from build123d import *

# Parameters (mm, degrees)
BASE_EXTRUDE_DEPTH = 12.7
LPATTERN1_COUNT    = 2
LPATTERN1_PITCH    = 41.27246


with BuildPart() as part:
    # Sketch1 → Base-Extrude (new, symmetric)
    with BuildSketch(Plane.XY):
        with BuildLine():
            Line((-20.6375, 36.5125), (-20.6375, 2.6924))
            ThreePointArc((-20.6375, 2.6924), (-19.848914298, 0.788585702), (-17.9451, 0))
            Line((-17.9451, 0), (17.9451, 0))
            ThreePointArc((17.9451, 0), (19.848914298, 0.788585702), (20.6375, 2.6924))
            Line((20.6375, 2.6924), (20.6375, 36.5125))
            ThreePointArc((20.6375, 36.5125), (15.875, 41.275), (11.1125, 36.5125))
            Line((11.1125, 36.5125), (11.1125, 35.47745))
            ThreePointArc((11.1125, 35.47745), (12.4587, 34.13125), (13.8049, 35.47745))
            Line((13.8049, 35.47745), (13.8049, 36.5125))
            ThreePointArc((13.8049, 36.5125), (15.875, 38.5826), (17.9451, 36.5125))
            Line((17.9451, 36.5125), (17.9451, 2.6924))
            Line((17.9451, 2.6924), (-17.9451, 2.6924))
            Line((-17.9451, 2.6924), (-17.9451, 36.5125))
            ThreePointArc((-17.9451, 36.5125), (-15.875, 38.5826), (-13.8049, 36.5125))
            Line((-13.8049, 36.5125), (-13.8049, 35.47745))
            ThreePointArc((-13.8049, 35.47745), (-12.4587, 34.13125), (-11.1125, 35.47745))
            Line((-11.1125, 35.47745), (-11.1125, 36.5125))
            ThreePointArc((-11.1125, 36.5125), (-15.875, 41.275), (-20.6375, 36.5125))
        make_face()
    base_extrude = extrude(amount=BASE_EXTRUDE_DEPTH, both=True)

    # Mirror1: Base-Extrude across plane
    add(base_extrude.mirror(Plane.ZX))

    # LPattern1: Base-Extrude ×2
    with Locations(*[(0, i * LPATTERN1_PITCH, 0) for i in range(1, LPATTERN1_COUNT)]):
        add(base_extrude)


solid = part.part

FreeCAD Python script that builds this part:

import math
import FreeCAD as App
import Part
import Sketcher
from FreeCAD import Vector
Q = App.Units.Quantity

doc = App.newDocument("Part")
params = doc.addObject("Spreadsheet::Sheet", "Params")
for row, (alias, value) in enumerate([
    ("sketch1_radius", "0.106 in"),
    ("sketch1_radius2", "0.1875 in"),
    ("sketch1_width", "1.413 in"),
    ("pad1_length", "1 in"),
    ("linearpattern_pitch", "1.6249 in"),
], start=1):
    params.set(f"A{row}", alias)
    params.set(f"B{row}", "=" + value)
    params.setAlias(f"B{row}", alias)

body = doc.addObject("PartDesign::Body", "Body")

# Sketch on XY plane
sketch1 = body.newObject("Sketcher::SketchObject", "Sketch")
sketch1.AttachmentSupport = (doc.getObject("XY_Plane"), [""])
sketch1.MapMode = "FlatFace"
sketch1.addGeometry([
    Part.LineSegment(Vector(-20.6375, 36.5125, 0), Vector(-20.6375, 2.6924, 0)),  # 0
    Part.ArcOfCircle(Part.Circle(Vector(-17.9451, 2.6924, 0), Vector(0, 0, 1), 2.6924), math.radians(180), math.radians(270)),  # 1
    Part.LineSegment(Vector(-17.9451, 0, 0), Vector(17.9451, 0, 0)),  # 2
    Part.ArcOfCircle(Part.Circle(Vector(17.9451, 2.6924, 0), Vector(0, 0, 1), 2.6924), math.radians(-90), math.radians(0)),  # 3
    Part.LineSegment(Vector(20.6375, 2.6924, 0), Vector(20.6375, 36.5125, 0)),  # 4
    Part.ArcOfCircle(Part.Circle(Vector(15.875, 36.5125, 0), Vector(0, 0, 1), 4.7625), math.radians(0), math.radians(180)),  # 5
    Part.LineSegment(Vector(11.1125, 36.5125, 0), Vector(11.1125, 35.47745, 0)),  # 6
    Part.ArcOfCircle(Part.Circle(Vector(12.4587, 35.47745, 0), Vector(0, 0, 1), 1.3462), math.radians(180), math.radians(360)),  # 7
    Part.LineSegment(Vector(13.8049, 35.47745, 0), Vector(13.8049, 36.5125, 0)),  # 8
    Part.ArcOfCircle(Part.Circle(Vector(15.875, 36.5125, 0), Vector(0, 0, 1), 2.0701), math.radians(0), math.radians(180)),  # 9
    Part.LineSegment(Vector(17.9451, 36.5125, 0), Vector(17.9451, 2.6924, 0)),  # 10
    Part.LineSegment(Vector(17.9451, 2.6924, 0), Vector(-17.9451, 2.6924, 0)),  # 11
    Part.LineSegment(Vector(-17.9451, 2.6924, 0), Vector(-17.9451, 36.5125, 0)),  # 12
    Part.ArcOfCircle(Part.Circle(Vector(-15.875, 36.5125, 0), Vector(0, 0, 1), 2.0701), math.radians(0), math.radians(180)),  # 13
    Part.LineSegment(Vector(-13.8049, 36.5125, 0), Vector(-13.8049, 35.47745, 0)),  # 14
    Part.ArcOfCircle(Part.Circle(Vector(-12.4587, 35.47745, 0), Vector(0, 0, 1), 1.3462), math.radians(180), math.radians(360)),  # 15
    Part.LineSegment(Vector(-11.1125, 35.47745, 0), Vector(-11.1125, 36.5125, 0)),  # 16
    Part.ArcOfCircle(Part.Circle(Vector(-15.875, 36.5125, 0), Vector(0, 0, 1), 4.7625), math.radians(0), math.radians(180)),  # 17
], False)
sketch1.addConstraint([
    Sketcher.Constraint("Tangent", 0, 2, 1, 1),
    Sketcher.Constraint("Tangent", 1, 2, 2, 1),
    Sketcher.Constraint("Tangent", 2, 2, 3, 1),
    Sketcher.Constraint("Tangent", 3, 2, 4, 1),
    Sketcher.Constraint("Tangent", 4, 2, 5, 1),
    Sketcher.Constraint("Tangent", 5, 2, 6, 1),
    Sketcher.Constraint("Tangent", 6, 2, 7, 1),
    Sketcher.Constraint("Tangent", 7, 2, 8, 1),
    Sketcher.Constraint("Tangent", 8, 2, 9, 2),
    Sketcher.Constraint("Tangent", 9, 1, 10, 1),
    Sketcher.Constraint("Coincident", 10, 2, 11, 1),
    Sketcher.Constraint("Coincident", 11, 2, 12, 1),
    Sketcher.Constraint("Tangent", 12, 2, 13, 2),
    Sketcher.Constraint("Tangent", 13, 1, 14, 1),
    Sketcher.Constraint("Tangent", 14, 2, 15, 1),
    Sketcher.Constraint("Tangent", 15, 2, 16, 1),
    Sketcher.Constraint("Tangent", 16, 2, 17, 1),
    Sketcher.Constraint("Tangent", 17, 2, 0, 1),
    Sketcher.Constraint("Vertical", 0),
    Sketcher.Constraint("Horizontal", 2),
    Sketcher.Constraint("Vertical", 4),
    Sketcher.Constraint("Vertical", 6),
    Sketcher.Constraint("Vertical", 8),
    Sketcher.Constraint("Vertical", 10),
    Sketcher.Constraint("Horizontal", 11),
    Sketcher.Constraint("Vertical", 12),
    Sketcher.Constraint("Vertical", 14),
    Sketcher.Constraint("Vertical", 16),
    Sketcher.Constraint("Coincident", 9, 3, 5, 3),
    Sketcher.Constraint("Coincident", 17, 3, 13, 3),
    Sketcher.Constraint("Coincident", 10, 2, 3, 3),
    Sketcher.Constraint("Coincident", 11, 2, 1, 3),
    Sketcher.Constraint("Equal", 9, 13),
    Sketcher.Constraint("Symmetric", 1, 2, 2, 2, -1, 1),
    Sketcher.Constraint("Horizontal", 9, 3, 13, 3),
    Sketcher.Constraint("Horizontal", 7, 3, 15, 3),
    Sketcher.Constraint("Radius", 1, Q("0.106 in")),
    Sketcher.Constraint("Radius", 5, Q("0.1875 in")),
    Sketcher.Constraint("DistanceX", 2, 1, 2, 2, Q("1.413 in")),
    Sketcher.Constraint("DistanceY", 0, 2, 0, 1, Q("1.3315 in")),
    Sketcher.Constraint("DistanceY", 6, 2, 6, 1, Q("1.03505 mm")),
])
sketch1.setExpression("Constraints[36]", "Params.sketch1_radius")
sketch1.setExpression("Constraints[37]", "Params.sketch1_radius2")
sketch1.setExpression("Constraints[38]", "Params.sketch1_width")
pad1 = body.newObject("PartDesign::Pad", "Pad")
pad1.Profile = sketch1
pad1.setExpression("Length", "Params.pad1_length")
pad1.Midplane = True
doc.recompute()

mirrored = body.newObject("PartDesign::Mirrored", "Mirrored")
mirrored.Originals = [pad1]
mirrored.MirrorPlane = (doc.getObject("XZ_Plane"), [""])
body.Tip = mirrored
doc.recompute()

linearpattern = body.newObject("PartDesign::LinearPattern", "LinearPattern")
linearpattern.Originals = [pad1]
linearpattern.Direction = (doc.getObject("Y_Axis"), [""])
linearpattern.Mode = "offset"
linearpattern.setExpression("Offset", "Params.linearpattern_pitch")
linearpattern.Occurrences = 2
body.Tip = linearpattern

doc.recompute()
